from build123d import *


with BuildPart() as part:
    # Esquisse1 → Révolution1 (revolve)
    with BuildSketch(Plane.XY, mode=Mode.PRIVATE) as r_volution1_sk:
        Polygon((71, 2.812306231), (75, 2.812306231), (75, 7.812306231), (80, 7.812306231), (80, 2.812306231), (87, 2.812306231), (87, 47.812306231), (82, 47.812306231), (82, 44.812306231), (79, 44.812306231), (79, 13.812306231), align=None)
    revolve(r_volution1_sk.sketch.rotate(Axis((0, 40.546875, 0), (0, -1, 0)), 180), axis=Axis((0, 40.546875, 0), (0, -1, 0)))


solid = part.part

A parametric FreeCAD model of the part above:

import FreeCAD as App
import Part
import Sketcher

V = App.Vector
Q = App.Units.Quantity


def add_polygon(sketch, points):
    """Adds a closed chain of lines whose ends are joined by coincident constraints."""
    first, n = sketch.GeometryCount, len(points)
    for a, b in zip(points, points[1:] + points[:1]):
        sketch.addGeometry(Part.LineSegment(App.Vector(*a, 0), App.Vector(*b, 0)), False)
    for i in range(n):
        sketch.addConstraint(Sketcher.Constraint("Coincident", first + i, 2, first + (i + 1) % n, 1))

doc = App.newDocument("Part")
params = doc.addObject("Spreadsheet::Sheet", "Params")
for row, (alias, value) in enumerate([
    ("sketch1_width", "4 mm"),
    ("sketch1_width2", "5 mm"),
    ("sketch1_width3", "7 mm"),
    ("sketch1_width4", "3 mm"),
    ("sketch1_height", "45 mm"),
    ("revolution_angle", "360 deg"),
], start=1):
    params.set(f"A{row}", alias)
    params.set(f"B{row}", "=" + value)
    params.setAlias(f"B{row}", alias)

body = doc.addObject("PartDesign::Body", "Body")

sketch1 = body.newObject("Sketcher::SketchObject", "Sketch")
sketch1.AttachmentSupport = (doc.getObject("XY_Plane"), [""])
sketch1.MapMode = "FlatFace"
add_polygon(sketch1, [(71, 2.8), (75, 2.8), (75, 7.8), (80, 7.8), (80, 2.8), (87, 2.8), (87, 47.8), (82, 47.8), (82, 44.8), (79, 44.8), (79, 13.8)])
sketch1.addConstraint([
    Sketcher.Constraint("Horizontal", 0),
    Sketcher.Constraint("Vertical", 1),
    Sketcher.Constraint("Horizontal", 2),
    Sketcher.Constraint("Vertical", 3),
    Sketcher.Constraint("Horizontal", 4),
    Sketcher.Constraint("Vertical", 5),
    Sketcher.Constraint("Horizontal", 6),
    Sketcher.Constraint("Vertical", 7),
    Sketcher.Constraint("Horizontal", 8),
    Sketcher.Constraint("Vertical", 9),
    Sketcher.Constraint("Horizontal", 0, 2, 3, 2),
    Sketcher.Constraint("Equal", 2, 6),
    Sketcher.Constraint("Equal", 6, 1),
    Sketcher.Constraint("Equal", 8, 7),
    Sketcher.Constraint("DistanceX", 0, 1, 0, 2, Q("4 mm")),
    Sketcher.Constraint("DistanceX", 2, 1, 2, 2, Q("5 mm")),
    Sketcher.Constraint("DistanceX", 4, 1, 4, 2, Q("7 mm")),
    Sketcher.Constraint("DistanceX", 8, 2, 8, 1, Q("3 mm")),
    Sketcher.Constraint("DistanceY", 5, 1, 5, 2, Q("45 mm")),
    Sketcher.Constraint("DistanceY", 9, 2, 9, 1, Q("31 mm")),
    Sketcher.Constraint("DistanceX", -1, 1, 0, 2, Q("75 mm")),
    Sketcher.Constraint("DistanceY", -1, 1, 0, 2, Q("2.812306 mm")),
])
sketch1.setExpression("Constraints[25]", "Params.sketch1_width")
sketch1.setExpression("Constraints[26]", "Params.sketch1_width2")
sketch1.setExpression("Constraints[27]", "Params.sketch1_width3")
sketch1.setExpression("Constraints[28]", "Params.sketch1_width4")
sketch1.setExpression("Constraints[29]", "Params.sketch1_height")
revolution = body.newObject("PartDesign::Revolution", "Revolution")
revolution.Profile = sketch1
revolution.ReferenceAxis = (sketch1, ["V_Axis"])
revolution.setExpression("Angle", "Params.revolution_angle")

doc.recompute()
